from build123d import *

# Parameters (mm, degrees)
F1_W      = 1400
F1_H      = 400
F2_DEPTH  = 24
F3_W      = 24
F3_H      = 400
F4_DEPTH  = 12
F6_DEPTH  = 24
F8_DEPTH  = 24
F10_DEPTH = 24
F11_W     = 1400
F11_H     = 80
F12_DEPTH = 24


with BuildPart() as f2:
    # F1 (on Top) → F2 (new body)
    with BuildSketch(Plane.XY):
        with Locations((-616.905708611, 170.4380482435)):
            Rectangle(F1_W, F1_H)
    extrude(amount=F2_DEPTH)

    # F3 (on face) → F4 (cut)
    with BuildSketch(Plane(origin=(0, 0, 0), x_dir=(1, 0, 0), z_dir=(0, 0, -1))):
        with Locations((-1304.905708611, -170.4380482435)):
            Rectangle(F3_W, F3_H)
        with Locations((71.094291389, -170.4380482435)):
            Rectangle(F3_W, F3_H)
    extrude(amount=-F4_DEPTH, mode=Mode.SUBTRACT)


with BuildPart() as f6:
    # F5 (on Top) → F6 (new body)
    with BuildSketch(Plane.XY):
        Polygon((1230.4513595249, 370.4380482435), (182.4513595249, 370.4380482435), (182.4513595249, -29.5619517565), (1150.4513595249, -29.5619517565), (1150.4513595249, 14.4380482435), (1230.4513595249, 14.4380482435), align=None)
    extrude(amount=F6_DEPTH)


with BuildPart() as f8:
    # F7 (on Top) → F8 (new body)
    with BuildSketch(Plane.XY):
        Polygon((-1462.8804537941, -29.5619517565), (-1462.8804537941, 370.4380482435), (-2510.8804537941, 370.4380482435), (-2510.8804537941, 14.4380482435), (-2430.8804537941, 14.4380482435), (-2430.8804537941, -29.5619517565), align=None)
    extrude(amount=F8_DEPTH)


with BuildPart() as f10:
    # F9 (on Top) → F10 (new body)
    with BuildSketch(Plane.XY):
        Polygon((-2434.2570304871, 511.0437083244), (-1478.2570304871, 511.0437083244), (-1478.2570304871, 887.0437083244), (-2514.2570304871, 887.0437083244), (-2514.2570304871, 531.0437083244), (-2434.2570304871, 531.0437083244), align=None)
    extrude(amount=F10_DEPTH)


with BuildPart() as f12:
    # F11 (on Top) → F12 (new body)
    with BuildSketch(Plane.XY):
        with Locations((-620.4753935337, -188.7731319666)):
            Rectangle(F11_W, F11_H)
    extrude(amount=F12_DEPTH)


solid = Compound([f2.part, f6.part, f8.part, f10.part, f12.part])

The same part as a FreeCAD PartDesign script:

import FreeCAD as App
import Part
import Sketcher

V = App.Vector


def add_polygon(sketch, points):
    """Adds a closed chain of lines whose ends are joined by coincident constraints."""
    first, n = sketch.GeometryCount, len(points)
    for a, b in zip(points, points[1:] + points[:1]):
        sketch.addGeometry(Part.LineSegment(App.Vector(*a, 0), App.Vector(*b, 0)), False)
    for i in range(n):
        sketch.addConstraint(Sketcher.Constraint("Coincident", first + i, 2, first + (i + 1) % n, 1))

doc = App.newDocument("Part")
body = doc.addObject("PartDesign::Body", "Body")

# Sketch on XY plane
sketch1 = body.newObject("Sketcher::SketchObject", "Sketch")
sketch1.AttachmentSupport = (doc.getObject("XY_Plane"), [""])
sketch1.MapMode = "FlatFace"
add_polygon(sketch1, [(-1317, 370), (-1317, -30), (83, -30), (83, 370)])  # lines 0-3
sketch1.addConstraint([
    Sketcher.Constraint("Vertical", 0),
    Sketcher.Constraint("Horizontal", 1),
    Sketcher.Constraint("Vertical", 2),
    Sketcher.Constraint("Horizontal", 3),
    Sketcher.Constraint("DistanceX", 1, 1, 1, 2, 1400.0),
    Sketcher.Constraint("DistanceY", 0, 2, 0, 1, 400.0),
    Sketcher.Constraint("DistanceX", 0, 2, -1, 1, 1316.905709),
    Sketcher.Constraint("DistanceY", 0, 2, -1, 1, 29.561952),
])
pad1 = body.newObject("PartDesign::Pad", "Pad")
pad1.Profile = sketch1
pad1.Length = 24

# Sketch on XY plane
sketch2 = body.newObject("Sketcher::SketchObject", "Sketch001")
sketch2.AttachmentSupport = (doc.getObject("XY_Plane"), [""])
sketch2.MapMode = "FlatFace"
add_polygon(sketch2, [(-1317, -30), (-1317, 370), (-1293, 370), (-1293, -30)])  # lines 0-3
add_polygon(sketch2, [(59, -30), (59, 370), (83, 370), (83, -30)])  # lines 4-7
sketch2.addConstraint([
    Sketcher.Constraint("Vertical", 0),
    Sketcher.Constraint("Horizontal", 1),
    Sketcher.Constraint("Vertical", 2),
    Sketcher.Constraint("Horizontal", 3),
    Sketcher.Constraint("Vertical", 4),
    Sketcher.Constraint("Horizontal", 5),
    Sketcher.Constraint("Vertical", 6),
    Sketcher.Constraint("Horizontal", 7),
    Sketcher.Constraint("Horizontal", 1, 2, 4, 2),
    Sketcher.Constraint("Horizontal", 3, 2, 6, 2),
    Sketcher.Constraint("Equal", 3, 5),
    Sketcher.Constraint("DistanceX", 1, 1, 1, 2, 24.0),
    Sketcher.Constraint("DistanceY", 0, 1, 0, 2, 400.0),
    Sketcher.Constraint("DistanceX", 1, 2, 4, 2, 1352.0),
    Sketcher.Constraint("DistanceX", 0, 2, -1, 1, 1316.905709),
    Sketcher.Constraint("DistanceY", -1, 1, 0, 2, 370.438048),
])
pocket1 = body.newObject("PartDesign::Pocket", "Pocket")
pocket1.Profile = sketch2
pocket1.Length = 12
pocket1.Reversed = True
body2 = doc.addObject("PartDesign::Body", "Body001")

# Sketch on XY plane
sketch3 = body2.newObject("Sketcher::SketchObject", "Sketch002")
sketch3.AttachmentSupport = (doc.getObject("XY_Plane001"), [""])
sketch3.MapMode = "FlatFace"
add_polygon(sketch3, [(1230, 370), (182, 370), (182, -30), (1150, -30), (1150, 14), (1230, 14)])  # lines 0-5
sketch3.addConstraint([
    Sketcher.Constraint("Horizontal", 0),
    Sketcher.Constraint("Vertical", 1),
    Sketcher.Constraint("Horizontal", 2),
    Sketcher.Constraint("Vertical", 3),
    Sketcher.Constraint("Horizontal", 4),
    Sketcher.Constraint("Vertical", 5),
    Sketcher.Constraint("DistanceX", 0, 2, 0, 1, 1048.0),
    Sketcher.Constraint("DistanceX", 2, 1, 2, 2, 968.0),
    Sketcher.Constraint("DistanceY", 1, 2, 1, 1, 400.0),
    Sketcher.Constraint("DistanceY", 3, 1, 3, 2, 44.0),
    Sketcher.Constraint("DistanceX", -1, 1, 0, 2, 182.45136),
    Sketcher.Constraint("DistanceY", -1, 1, 0, 2, 370.438048),
])
pad2 = body2.newObject("PartDesign::Pad", "Pad001")
pad2.Profile = sketch3
pad2.Length = 24
body3 = doc.addObject("PartDesign::Body", "Body002")

# Sketch on XY plane
sketch4 = body3.newObject("Sketcher::SketchObject", "Sketch003")
sketch4.AttachmentSupport = (doc.getObject("XY_Plane002"), [""])
sketch4.MapMode = "FlatFace"
add_polygon(sketch4, [(-1463, -30), (-1463, 370), (-2511, 370), (-2511, 14), (-2431, 14), (-2431, -30)])  # lines 0-5
sketch4.addConstraint([
    Sketcher.Constraint("Vertical", 0),
    Sketcher.Constraint("Horizontal", 1),
    Sketcher.Constraint("Vertical", 2),
    Sketcher.Constraint("Horizontal", 3),
    Sketcher.Constraint("Vertical", 4),
    Sketcher.Constraint("Horizontal", 5),
    Sketcher.Constraint("DistanceX", 1, 2, 1, 1, 1048.0),
    Sketcher.Constraint("DistanceX", 3, 1, 3, 2, 80.0),
    Sketcher.Constraint("DistanceY", 0, 1, 0, 2, 400.0),
    Sketcher.Constraint("DistanceY", 2, 2, 2, 1, 356.0),
    Sketcher.Constraint("DistanceY", -1, 1, 0, 2, 370.438048),
    Sketcher.Constraint("DistanceX", 0, 2, -1, 1, 1462.880454),
])
pad3 = body3.newObject("PartDesign::Pad", "Pad002")
pad3.Profile = sketch4
pad3.Length = 24
body4 = doc.addObject("PartDesign::Body", "Body003")

# Sketch on XY plane
sketch5 = body4.newObject("Sketcher::SketchObject", "Sketch004")
sketch5.AttachmentSupport = (doc.getObject("XY_Plane003"), [""])
sketch5.MapMode = "FlatFace"
add_polygon(sketch5, [(-2434, 511), (-1478, 511), (-1478, 887), (-2514, 887), (-2514, 531), (-2434, 531)])  # lines 0-5
sketch5.addConstraint([
    Sketcher.Constraint("Horizontal", 0),
    Sketcher.Constraint("Vertical", 1),
    Sketcher.Constraint("Horizontal", 2),
    Sketcher.Constraint("Vertical", 3),
    Sketcher.Constraint("Horizontal", 4),
    Sketcher.Constraint("Vertical", 5),
    Sketcher.Constraint("DistanceX", 0, 1, 0, 2, 956.0),
    Sketcher.Constraint("DistanceX", 2, 2, 2, 1, 1036.0),
    Sketcher.Constraint("DistanceY", 1, 1, 1, 2, 376.0),
    Sketcher.Constraint("DistanceY", 3, 2, 3, 1, 356.0),
    Sketcher.Constraint("DistanceX", 0, 2, -1, 1, 1478.25703),
    Sketcher.Constraint("DistanceY", -1, 1, 0, 2, 511.043708),
])
pad4 = body4.newObject("PartDesign::Pad", "Pad003")
pad4.Profile = sketch5
pad4.Length = 24
body5 = doc.addObject("PartDesign::Body", "Body004")

# Sketch on XY plane
sketch6 = body5.newObject("Sketcher::SketchObject", "Sketch005")
sketch6.AttachmentSupport = (doc.getObject("XY_Plane004"), [""])
sketch6.MapMode = "FlatFace"
add_polygon(sketch6, [(-1320, -149), (-1320, -229), (80, -229), (80, -149)])  # lines 0-3
sketch6.addConstraint([
    Sketcher.Constraint("Vertical", 0),
    Sketcher.Constraint("Horizontal", 1),
    Sketcher.Constraint("Vertical", 2),
    Sketcher.Constraint("Horizontal", 3),
    Sketcher.Constraint("DistanceX", 1, 1, 1, 2, 1400.0),
    Sketcher.Constraint("DistanceY", 0, 2, 0, 1, 80.0),
    Sketcher.Constraint("DistanceY", 0, 2, -1, 1, 228.773132),
    Sketcher.Constraint("DistanceX", 0, 2, -1, 1, 1320.475394),
])
pad5 = body5.newObject("PartDesign::Pad", "Pad004")
pad5.Profile = sketch6
pad5.Length = 24

doc.recompute()
